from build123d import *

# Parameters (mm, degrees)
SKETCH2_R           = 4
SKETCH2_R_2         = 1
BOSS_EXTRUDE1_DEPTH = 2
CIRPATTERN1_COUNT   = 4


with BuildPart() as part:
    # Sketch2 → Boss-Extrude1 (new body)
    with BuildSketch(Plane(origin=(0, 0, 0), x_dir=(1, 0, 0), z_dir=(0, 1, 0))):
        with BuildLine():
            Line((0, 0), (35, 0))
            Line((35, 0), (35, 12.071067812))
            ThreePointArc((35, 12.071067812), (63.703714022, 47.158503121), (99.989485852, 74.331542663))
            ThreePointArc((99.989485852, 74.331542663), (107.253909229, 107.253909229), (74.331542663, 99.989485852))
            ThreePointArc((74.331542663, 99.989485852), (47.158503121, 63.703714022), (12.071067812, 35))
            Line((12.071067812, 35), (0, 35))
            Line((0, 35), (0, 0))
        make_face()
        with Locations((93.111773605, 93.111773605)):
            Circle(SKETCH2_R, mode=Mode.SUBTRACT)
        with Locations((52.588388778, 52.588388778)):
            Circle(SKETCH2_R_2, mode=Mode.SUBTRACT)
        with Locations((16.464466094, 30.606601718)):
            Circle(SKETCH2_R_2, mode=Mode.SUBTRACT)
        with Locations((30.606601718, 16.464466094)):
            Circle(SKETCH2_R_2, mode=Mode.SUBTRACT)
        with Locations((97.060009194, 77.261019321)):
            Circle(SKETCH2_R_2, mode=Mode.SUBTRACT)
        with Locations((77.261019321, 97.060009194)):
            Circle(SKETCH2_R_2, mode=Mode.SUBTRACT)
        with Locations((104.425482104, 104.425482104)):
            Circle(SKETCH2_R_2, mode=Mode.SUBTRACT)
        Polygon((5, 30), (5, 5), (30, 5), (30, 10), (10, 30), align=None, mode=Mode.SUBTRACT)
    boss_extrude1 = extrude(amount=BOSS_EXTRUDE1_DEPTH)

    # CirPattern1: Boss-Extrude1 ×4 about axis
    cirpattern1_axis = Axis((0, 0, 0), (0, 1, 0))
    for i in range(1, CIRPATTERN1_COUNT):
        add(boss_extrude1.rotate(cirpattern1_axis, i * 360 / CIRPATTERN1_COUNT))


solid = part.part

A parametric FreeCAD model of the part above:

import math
import FreeCAD as App
import Part
import Sketcher

V = App.Vector
Q = App.Units.Quantity


def add_polygon(sketch, points):
    """Adds a closed chain of lines whose ends are joined by coincident constraints."""
    first, n = sketch.GeometryCount, len(points)
    for a, b in zip(points, points[1:] + points[:1]):
        sketch.addGeometry(Part.LineSegment(App.Vector(*a, 0), App.Vector(*b, 0)), False)
    for i in range(n):
        sketch.addConstraint(Sketcher.Constraint("Coincident", first + i, 2, first + (i + 1) % n, 1))

doc = App.newDocument("Part")
body = doc.addObject("PartDesign::Body", "Body")

# Sketch on XZ plane
sketch1 = body.newObject("Sketcher::SketchObject", "Sketch")
sketch1.AttachmentSupport = (doc.getObject("XZ_Plane"), [""])
sketch1.MapMode = "FlatFace"
sketch1.addGeometry(Part.LineSegment(V(0, 0, 0), V(35, 0, 0)), False)  # 0
sketch1.addGeometry(Part.LineSegment(V(35, 0, 0), V(35, -12.1, 0)), False)  # 1
sketch1.addGeometry(Part.ArcOfCircle(Part.Circle(V(193.4, 88.2, 0), V(0, 0, 1), 187.5), math.radians(-148), math.radians(-120)), False)  # 2
sketch1.addGeometry(Part.ArcOfCircle(Part.Circle(V(93.1, -93.1, 0), V(0, 0, 1), 20), math.radians(-160), math.radians(70)), False)  # 3
sketch1.addGeometry(Part.ArcOfCircle(Part.Circle(V(-88.2, -193.4, 0), V(0, 0, 1), 187.5), math.radians(30), math.radians(58)), False)  # 4
sketch1.addGeometry(Part.LineSegment(V(12.1, -35, 0), V(0, -35, 0)), False)  # 5
sketch1.addGeometry(Part.LineSegment(V(0, -35, 0), V(0, 0, 0)), False)  # 6
add_polygon(sketch1, [(5, -5), (5, -30), (10, -30), (30, -10), (30, -5)])  # lines 7-11
sketch1.addGeometry(Part.Circle(V(30.6, -16.5, 0), V(0, 0, 1), 1), False)  # 12
sketch1.addGeometry(Part.Circle(V(16.5, -30.6, 0), V(0, 0, 1), 1), False)  # 13
sketch1.addGeometry(Part.Circle(V(52.6, -52.6, 0), V(0, 0, 1), 1), False)  # 14
sketch1.addGeometry(Part.Circle(V(97.1, -77.3, 0), V(0, 0, 1), 1), False)  # 15
sketch1.addGeometry(Part.Circle(V(77.3, -97.1, 0), V(0, 0, 1), 1), False)  # 16
sketch1.addGeometry(Part.Circle(V(93.1, -93.1, 0), V(0, 0, 1), 4), False)  # 17
sketch1.addGeometry(Part.Circle(V(104.4, -104.4, 0), V(0, 0, 1), 1), False)  # 18
sketch1.addConstraint([
    Sketcher.Constraint("Coincident", 0, 2, 1, 1),
    Sketcher.Constraint("Coincident", 1, 2, 2, 1),
    Sketcher.Constraint("Coincident", 2, 2, 3, 2),
    Sketcher.Constraint("Coincident", 3, 1, 4, 1),
    Sketcher.Constraint("Coincident", 4, 2, 5, 1),
    Sketcher.Constraint("Coincident", 5, 2, 6, 1),
    Sketcher.Constraint("Coincident", 6, 2, 0, 1),
    Sketcher.Constraint("Horizontal", 0),
    Sketcher.Constraint("Vertical", 1),
    Sketcher.Constraint("Horizontal", 5),
    Sketcher.Constraint("Vertical", 6),
    Sketcher.Constraint("Vertical", 7),
    Sketcher.Constraint("Horizontal", 8),
    Sketcher.Constraint("Vertical", 10),
    Sketcher.Constraint("Horizontal", 11),
    Sketcher.Constraint("Coincident", 6, 2, -1, 1),
    Sketcher.Constraint("Coincident", 17, 3, 3, 3),
    Sketcher.Constraint("Equal", 2, 4),
    Sketcher.Constraint("Equal", 12, 13),
    Sketcher.Constraint("Equal", 13, 14),
    Sketcher.Constraint("Equal", 14, 15),
    Sketcher.Constraint("Equal", 15, 16),
    Sketcher.Constraint("Equal", 16, 18),
    Sketcher.Constraint("Equal", 5, 1),
    Sketcher.Constraint("Equal", 0, 6),
    Sketcher.Constraint("Equal", 11, 7),
    Sketcher.Constraint("Equal", 8, 10),
    Sketcher.Constraint("Diameter", 12, Q("2 mm")),
    Sketcher.Constraint("Diameter", 17, Q("8 mm")),
    Sketcher.Constraint("Radius", 3, Q("20 mm")),
    Sketcher.Constraint("Radius", 2, Q("187.5 mm")),
    Sketcher.Constraint("DistanceX", 0, 1, 0, 2, Q("35 mm")),
    Sketcher.Constraint("DistanceX", 8, 1, 8, 2, Q("5 mm")),
    Sketcher.Constraint("DistanceX", 11, 2, 11, 1, Q("25 mm")),
    Sketcher.Constraint("DistanceX", -1, 1, 7, 2, Q("5 mm")),
    Sketcher.Constraint("DistanceY", 7, 2, -1, 1, Q("30 mm")),
    Sketcher.Constraint("DistanceX", -1, 1, 12, 3, Q("30.606602 mm")),
    Sketcher.Constraint("DistanceY", 13, 3, -1, 1, Q("30.606602 mm")),
    Sketcher.Constraint("DistanceY", 12, 3, 1, 2, Q("4.393398 mm")),
    Sketcher.Constraint("DistanceX", 4, 2, 13, 3, Q("4.393398 mm")),
    Sketcher.Constraint("DistanceX", 5, 2, 5, 1, Q("12.071068 mm")),
    Sketcher.Constraint("DistanceY", -1, 1, 2, 3, Q("88.236259 mm")),
    Sketcher.Constraint("DistanceX", 4, 3, -1, 1, Q("88.236259 mm")),
    Sketcher.Constraint("DistanceX", -1, 1, 14, 3, Q("52.588389 mm")),
    Sketcher.Constraint("DistanceY", 14, 3, -1, 1, Q("52.588389 mm")),
    Sketcher.Constraint("DistanceX", -1, 1, 15, 3, Q("97.060009 mm")),
    Sketcher.Constraint("DistanceY", 15, 3, -1, 1, Q("77.261019 mm")),
    Sketcher.Constraint("DistanceX", -1, 1, 16, 3, Q("77.261019 mm")),
    Sketcher.Constraint("DistanceY", 16, 3, -1, 1, Q("97.060009 mm")),
    Sketcher.Constraint("DistanceX", 12, 3, 3, 3, Q("62.505172 mm")),
    Sketcher.Constraint("DistanceY", 3, 3, 13, 3, Q("62.505172 mm")),
    Sketcher.Constraint("DistanceX", 3, 3, 18, 3, Q("11.313708 mm")),
    Sketcher.Constraint("DistanceY", 18, 3, 3, 3, Q("11.313708 mm")),
])
pad1 = body.newObject("PartDesign::Pad", "Pad")
pad1.Profile = sketch1
pad1.Length = 2
pad1.Reversed = True
doc.recompute()

polarpattern = body.newObject("PartDesign::PolarPattern", "PolarPattern")
polarpattern.Originals = [pad1]
polarpattern.Axis = (doc.getObject("Y_Axis"), [""])
polarpattern.Angle = 360
polarpattern.Occurrences = 4
body.Tip = polarpattern

doc.recompute()
